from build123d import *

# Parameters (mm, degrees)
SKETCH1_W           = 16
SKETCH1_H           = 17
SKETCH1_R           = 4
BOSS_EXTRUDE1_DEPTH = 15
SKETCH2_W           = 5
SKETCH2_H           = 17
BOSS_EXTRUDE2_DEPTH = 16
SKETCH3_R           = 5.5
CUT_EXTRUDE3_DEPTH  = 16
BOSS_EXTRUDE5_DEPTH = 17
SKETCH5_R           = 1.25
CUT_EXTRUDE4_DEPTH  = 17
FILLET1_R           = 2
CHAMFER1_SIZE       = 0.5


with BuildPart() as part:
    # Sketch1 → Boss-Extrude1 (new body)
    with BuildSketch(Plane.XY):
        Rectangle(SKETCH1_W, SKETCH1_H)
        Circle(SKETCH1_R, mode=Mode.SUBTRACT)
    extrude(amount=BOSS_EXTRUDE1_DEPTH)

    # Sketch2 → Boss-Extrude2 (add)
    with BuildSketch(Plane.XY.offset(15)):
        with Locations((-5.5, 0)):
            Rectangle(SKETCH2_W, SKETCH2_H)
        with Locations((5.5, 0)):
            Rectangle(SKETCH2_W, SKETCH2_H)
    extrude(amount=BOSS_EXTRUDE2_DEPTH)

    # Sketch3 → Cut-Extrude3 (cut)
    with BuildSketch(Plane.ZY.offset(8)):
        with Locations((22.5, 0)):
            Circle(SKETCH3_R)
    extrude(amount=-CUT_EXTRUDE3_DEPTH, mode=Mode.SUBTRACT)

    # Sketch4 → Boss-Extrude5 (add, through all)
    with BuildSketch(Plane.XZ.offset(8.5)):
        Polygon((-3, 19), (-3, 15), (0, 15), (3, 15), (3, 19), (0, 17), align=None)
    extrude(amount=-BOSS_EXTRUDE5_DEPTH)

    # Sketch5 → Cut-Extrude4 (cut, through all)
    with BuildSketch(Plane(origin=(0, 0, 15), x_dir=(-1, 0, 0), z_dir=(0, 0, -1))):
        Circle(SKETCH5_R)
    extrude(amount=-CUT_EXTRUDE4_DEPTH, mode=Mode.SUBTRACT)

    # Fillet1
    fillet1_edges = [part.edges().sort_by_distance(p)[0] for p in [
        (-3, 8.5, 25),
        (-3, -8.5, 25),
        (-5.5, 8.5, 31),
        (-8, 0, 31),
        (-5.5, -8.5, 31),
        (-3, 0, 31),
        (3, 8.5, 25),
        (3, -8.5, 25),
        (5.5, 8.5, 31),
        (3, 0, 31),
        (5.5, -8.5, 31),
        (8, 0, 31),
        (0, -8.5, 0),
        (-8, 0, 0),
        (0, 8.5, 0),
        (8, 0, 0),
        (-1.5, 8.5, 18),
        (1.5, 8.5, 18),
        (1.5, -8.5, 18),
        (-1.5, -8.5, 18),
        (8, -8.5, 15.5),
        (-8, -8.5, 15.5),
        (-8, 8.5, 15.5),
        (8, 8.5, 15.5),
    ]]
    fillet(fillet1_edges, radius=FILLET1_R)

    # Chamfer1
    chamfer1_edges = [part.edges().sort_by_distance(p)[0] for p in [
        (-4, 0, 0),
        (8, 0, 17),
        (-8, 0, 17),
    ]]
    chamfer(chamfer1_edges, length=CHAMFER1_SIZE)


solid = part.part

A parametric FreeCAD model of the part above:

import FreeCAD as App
import Part
import Sketcher
from FreeCAD import Vector
Q = App.Units.Quantity


def edges_at(feature, points):
    """Names of the edges that pass closest to the given points."""
    edges = feature.Shape.Edges
    near = lambda p: min(range(len(edges)), key=lambda i: edges[i].distToShape(Part.Vertex(*p))[0])
    return sorted({f"Edge{near(p) + 1}" for p in points})


def add_polygon(sketch, points):
    """Adds a closed chain of lines whose ends are joined by coincident constraints."""
    first, n = sketch.GeometryCount, len(points)
    for a, b in zip(points, points[1:] + points[:1]):
        sketch.addGeometry(Part.LineSegment(App.Vector(*a, 0), App.Vector(*b, 0)), False)
    for i in range(n):
        sketch.addConstraint(Sketcher.Constraint("Coincident", first + i, 2, first + (i + 1) % n, 1))

doc = App.newDocument("Part")
params = doc.addObject("Spreadsheet::Sheet", "Params")
for row, (alias, value) in enumerate([
    ("sketch1_diameter", "8 mm"),
    ("sketch1_width", "16 mm"),
    ("sketch1_height", "17 mm"),
    ("pad1_length", "15 mm"),
    ("sketch2_width", "5 mm"),
    ("sketch2_height", "17 mm"),
    ("pad2_length", "16 mm"),
    ("sketch3_diameter", "11 mm"),
    ("pocket1_length", "16 mm"),
    ("sketch4_width", "6 mm"),
    ("sketch4_height", "4 mm"),
    ("pad3_length", "17 mm"),
    ("sketch5_diameter", "2.5 mm"),
    ("fillet_radius", "2 mm"),
    ("chamfer_size", "0.5 mm"),
], start=1):
    params.set(f"A{row}", alias)
    params.set(f"B{row}", "=" + value)
    params.setAlias(f"B{row}", alias)

body = doc.addObject("PartDesign::Body", "Body")

sketch1 = body.newObject("Sketcher::SketchObject", "Sketch")
sketch1.AttachmentSupport = (doc.getObject("XY_Plane"), [""])
sketch1.MapMode = "FlatFace"
add_polygon(sketch1, [(-8, 8.5), (-8, -8.5), (8, -8.5), (8, 8.5)])
sketch1.addGeometry(Part.Circle(Vector(0, 0, 0), Vector(0, 0, 1), 4), False)
sketch1.addConstraint([
    Sketcher.Constraint("Vertical", 0),
    Sketcher.Constraint("Horizontal", 1),
    Sketcher.Constraint("Vertical", 2),
    Sketcher.Constraint("Horizontal", 3),
    Sketcher.Constraint("Coincident", 4, 3, -1, 1),
    Sketcher.Constraint("Symmetric", 0, 2, 2, 2, -1, 1),
    Sketcher.Constraint("Diameter", 4, Q("8 mm")),
    Sketcher.Constraint("DistanceX", 1, 1, 1, 2, Q("16 mm")),
    Sketcher.Constraint("DistanceY", 0, 2, 0, 1, Q("17 mm")),
])
sketch1.setExpression("Constraints[10]", "Params.sketch1_diameter")
sketch1.setExpression("Constraints[11]", "Params.sketch1_width")
sketch1.setExpression("Constraints[12]", "Params.sketch1_height")
pad1 = body.newObject("PartDesign::Pad", "Pad")
pad1.Profile = sketch1
pad1.setExpression("Length", "Params.pad1_length")

sketch2 = body.newObject("Sketcher::SketchObject", "Sketch001")
sketch2.AttachmentSupport = (doc.getObject("XY_Plane"), [""])
sketch2.MapMode = "FlatFace"
sketch2.AttachmentOffset = App.Placement(Vector(0, 0, 15), App.Rotation())
add_polygon(sketch2, [(-8, 8), (-8, -8), (-3, -8), (-3, 8)])
add_polygon(sketch2, [(3, 8), (3, -8), (8, -8), (8, 8)])
sketch2.addConstraint([
    Sketcher.Constraint("Vertical", 0),
    Sketcher.Constraint("Horizontal", 1),
    Sketcher.Constraint("Vertical", 2),
    Sketcher.Constraint("Horizontal", 3),
    Sketcher.Constraint("Vertical", 4),
    Sketcher.Constraint("Horizontal", 5),
    Sketcher.Constraint("Vertical", 6),
    Sketcher.Constraint("Horizontal", 7),
    Sketcher.Constraint("Symmetric", 2, 2, 4, 2, -1, 1),
    Sketcher.Constraint("Symmetric", 0, 2, 6, 2, -1, 1),
    Sketcher.Constraint("Horizontal", 1, 2, 4, 2),
    Sketcher.Constraint("DistanceX", 1, 1, 1, 2, Q("5 mm")),
    Sketcher.Constraint("DistanceY", 0, 2, 0, 1, Q("17 mm")),
    Sketcher.Constraint("DistanceX", 0, 2, -1, 1, Q("8 mm")),
])
sketch2.setExpression("Constraints[19]", "Params.sketch2_width")
sketch2.setExpression("Constraints[20]", "Params.sketch2_height")
pad2 = body.newObject("PartDesign::Pad", "Pad001")
pad2.Profile = sketch2
pad2.setExpression("Length", "Params.pad2_length")

sketch3 = body.newObject("Sketcher::SketchObject", "Sketch002")
sketch3.AttachmentSupport = (doc.getObject("YZ_Plane"), [""])
sketch3.MapMode = "FlatFace"
sketch3.AttachmentOffset = App.Placement(Vector(0, 0, -8), App.Rotation())
sketch3.addGeometry(Part.Circle(Vector(0, 22, 0), Vector(0, 0, 1), 6), False)
sketch3.addConstraint([
    Sketcher.Constraint("PointOnObject", 0, 3, -2),
    Sketcher.Constraint("Diameter", 0, Q("11 mm")),
    Sketcher.Constraint("DistanceY", -1, 1, 0, 3, Q("22.5 mm")),
])
sketch3.setExpression("Constraints[1]", "Params.sketch3_diameter")
pocket1 = body.newObject("PartDesign::Pocket", "Pocket")
pocket1.Profile = sketch3
pocket1.setExpression("Length", "Params.pocket1_length")
pocket1.Reversed = True

sketch4 = body.newObject("Sketcher::SketchObject", "Sketch003")
sketch4.AttachmentSupport = (doc.getObject("XZ_Plane"), [""])
sketch4.MapMode = "FlatFace"
sketch4.AttachmentOffset = App.Placement(Vector(0, 0, 8.5), App.Rotation())
add_polygon(sketch4, [(-3, 19), (-3, 15), (3, 15), (3, 19), (0, 17)])
sketch4.addConstraint([
    Sketcher.Constraint("Vertical", 0),
    Sketcher.Constraint("Horizontal", 1),
    Sketcher.Constraint("Vertical", 2),
    Sketcher.Constraint("Symmetric", 2, 2, 4, 2, -2),
    Sketcher.Constraint("PointOnObject", 3, 2, -2),
    Sketcher.Constraint("DistanceX", 1, 1, 1, 2, Q("6 mm")),
    Sketcher.Constraint("DistanceY", 0, 2, 0, 1, Q("4 mm")),
    Sketcher.Constraint("DistanceY", -1, 1, 0, 2, Q("15 mm")),
    Sketcher.Constraint("DistanceY", -1, 1, 3, 2, Q("17 mm")),
])
sketch4.setExpression("Constraints[10]", "Params.sketch4_width")
sketch4.setExpression("Constraints[11]", "Params.sketch4_height")
pad3 = body.newObject("PartDesign::Pad", "Pad002")
pad3.Profile = sketch4
pad3.setExpression("Length", "Params.pad3_length")
pad3.Reversed = True

sketch5 = body.newObject("Sketcher::SketchObject", "Sketch004")
sketch5.AttachmentSupport = (doc.getObject("XY_Plane"), [""])
sketch5.MapMode = "FlatFace"
sketch5.AttachmentOffset = App.Placement(Vector(0, 0, 15), App.Rotation())
sketch5.addGeometry(Part.Circle(Vector(0, 0, 0), Vector(0, 0, 1), 1.2), False)
sketch5.addConstraint([
    Sketcher.Constraint("Coincident", 0, 3, -1, 1),
    Sketcher.Constraint("Diameter", 0, Q("2.5 mm")),
])
sketch5.setExpression("Constraints[1]", "Params.sketch5_diameter")
pocket2 = body.newObject("PartDesign::Pocket", "Pocket001")
pocket2.Profile = sketch5
pocket2.Type = "ThroughAll"
pocket2.Reversed = True
doc.recompute()

fillet = body.newObject("PartDesign::Fillet", "Fillet")
fillet.Base = (pocket2, edges_at(pocket2, [
    (-3, 8.5, 25),
    (-3, -8.5, 25),
    (-5.5, 8.5, 31),
    (-8, 0, 31),
    (-5.5, -8.5, 31),
    (-3, 0, 31),
    (3, 8.5, 25),
    (3, -8.5, 25),
    (5.5, 8.5, 31),
    (3, 0, 31),
    (5.5, -8.5, 31),
    (8, 0, 31),
    (0, -8.5, 0),
    (-8, 0, 0),
    (0, 8.5, 0),
    (8, 0, 0),
    (-1.5, 8.5, 18),
    (1.5, 8.5, 18),
    (1.5, -8.5, 18),
    (-1.5, -8.5, 18),
    (8, -8.5, 15.5),
    (-8, -8.5, 15.5),
    (-8, 8.5, 15.5),
    (8, 8.5, 15.5),
]))
fillet.setExpression("Radius", "Params.fillet_radius")
doc.recompute()

chamfer = body.newObject("PartDesign::Chamfer", "Chamfer")
chamfer.Base = (fillet, edges_at(fillet, [(-4, 0, 0), (8, 0, 17), (-8, 0, 17)]))
chamfer.setExpression("Size", "Params.chamfer_size")

doc.recompute()
